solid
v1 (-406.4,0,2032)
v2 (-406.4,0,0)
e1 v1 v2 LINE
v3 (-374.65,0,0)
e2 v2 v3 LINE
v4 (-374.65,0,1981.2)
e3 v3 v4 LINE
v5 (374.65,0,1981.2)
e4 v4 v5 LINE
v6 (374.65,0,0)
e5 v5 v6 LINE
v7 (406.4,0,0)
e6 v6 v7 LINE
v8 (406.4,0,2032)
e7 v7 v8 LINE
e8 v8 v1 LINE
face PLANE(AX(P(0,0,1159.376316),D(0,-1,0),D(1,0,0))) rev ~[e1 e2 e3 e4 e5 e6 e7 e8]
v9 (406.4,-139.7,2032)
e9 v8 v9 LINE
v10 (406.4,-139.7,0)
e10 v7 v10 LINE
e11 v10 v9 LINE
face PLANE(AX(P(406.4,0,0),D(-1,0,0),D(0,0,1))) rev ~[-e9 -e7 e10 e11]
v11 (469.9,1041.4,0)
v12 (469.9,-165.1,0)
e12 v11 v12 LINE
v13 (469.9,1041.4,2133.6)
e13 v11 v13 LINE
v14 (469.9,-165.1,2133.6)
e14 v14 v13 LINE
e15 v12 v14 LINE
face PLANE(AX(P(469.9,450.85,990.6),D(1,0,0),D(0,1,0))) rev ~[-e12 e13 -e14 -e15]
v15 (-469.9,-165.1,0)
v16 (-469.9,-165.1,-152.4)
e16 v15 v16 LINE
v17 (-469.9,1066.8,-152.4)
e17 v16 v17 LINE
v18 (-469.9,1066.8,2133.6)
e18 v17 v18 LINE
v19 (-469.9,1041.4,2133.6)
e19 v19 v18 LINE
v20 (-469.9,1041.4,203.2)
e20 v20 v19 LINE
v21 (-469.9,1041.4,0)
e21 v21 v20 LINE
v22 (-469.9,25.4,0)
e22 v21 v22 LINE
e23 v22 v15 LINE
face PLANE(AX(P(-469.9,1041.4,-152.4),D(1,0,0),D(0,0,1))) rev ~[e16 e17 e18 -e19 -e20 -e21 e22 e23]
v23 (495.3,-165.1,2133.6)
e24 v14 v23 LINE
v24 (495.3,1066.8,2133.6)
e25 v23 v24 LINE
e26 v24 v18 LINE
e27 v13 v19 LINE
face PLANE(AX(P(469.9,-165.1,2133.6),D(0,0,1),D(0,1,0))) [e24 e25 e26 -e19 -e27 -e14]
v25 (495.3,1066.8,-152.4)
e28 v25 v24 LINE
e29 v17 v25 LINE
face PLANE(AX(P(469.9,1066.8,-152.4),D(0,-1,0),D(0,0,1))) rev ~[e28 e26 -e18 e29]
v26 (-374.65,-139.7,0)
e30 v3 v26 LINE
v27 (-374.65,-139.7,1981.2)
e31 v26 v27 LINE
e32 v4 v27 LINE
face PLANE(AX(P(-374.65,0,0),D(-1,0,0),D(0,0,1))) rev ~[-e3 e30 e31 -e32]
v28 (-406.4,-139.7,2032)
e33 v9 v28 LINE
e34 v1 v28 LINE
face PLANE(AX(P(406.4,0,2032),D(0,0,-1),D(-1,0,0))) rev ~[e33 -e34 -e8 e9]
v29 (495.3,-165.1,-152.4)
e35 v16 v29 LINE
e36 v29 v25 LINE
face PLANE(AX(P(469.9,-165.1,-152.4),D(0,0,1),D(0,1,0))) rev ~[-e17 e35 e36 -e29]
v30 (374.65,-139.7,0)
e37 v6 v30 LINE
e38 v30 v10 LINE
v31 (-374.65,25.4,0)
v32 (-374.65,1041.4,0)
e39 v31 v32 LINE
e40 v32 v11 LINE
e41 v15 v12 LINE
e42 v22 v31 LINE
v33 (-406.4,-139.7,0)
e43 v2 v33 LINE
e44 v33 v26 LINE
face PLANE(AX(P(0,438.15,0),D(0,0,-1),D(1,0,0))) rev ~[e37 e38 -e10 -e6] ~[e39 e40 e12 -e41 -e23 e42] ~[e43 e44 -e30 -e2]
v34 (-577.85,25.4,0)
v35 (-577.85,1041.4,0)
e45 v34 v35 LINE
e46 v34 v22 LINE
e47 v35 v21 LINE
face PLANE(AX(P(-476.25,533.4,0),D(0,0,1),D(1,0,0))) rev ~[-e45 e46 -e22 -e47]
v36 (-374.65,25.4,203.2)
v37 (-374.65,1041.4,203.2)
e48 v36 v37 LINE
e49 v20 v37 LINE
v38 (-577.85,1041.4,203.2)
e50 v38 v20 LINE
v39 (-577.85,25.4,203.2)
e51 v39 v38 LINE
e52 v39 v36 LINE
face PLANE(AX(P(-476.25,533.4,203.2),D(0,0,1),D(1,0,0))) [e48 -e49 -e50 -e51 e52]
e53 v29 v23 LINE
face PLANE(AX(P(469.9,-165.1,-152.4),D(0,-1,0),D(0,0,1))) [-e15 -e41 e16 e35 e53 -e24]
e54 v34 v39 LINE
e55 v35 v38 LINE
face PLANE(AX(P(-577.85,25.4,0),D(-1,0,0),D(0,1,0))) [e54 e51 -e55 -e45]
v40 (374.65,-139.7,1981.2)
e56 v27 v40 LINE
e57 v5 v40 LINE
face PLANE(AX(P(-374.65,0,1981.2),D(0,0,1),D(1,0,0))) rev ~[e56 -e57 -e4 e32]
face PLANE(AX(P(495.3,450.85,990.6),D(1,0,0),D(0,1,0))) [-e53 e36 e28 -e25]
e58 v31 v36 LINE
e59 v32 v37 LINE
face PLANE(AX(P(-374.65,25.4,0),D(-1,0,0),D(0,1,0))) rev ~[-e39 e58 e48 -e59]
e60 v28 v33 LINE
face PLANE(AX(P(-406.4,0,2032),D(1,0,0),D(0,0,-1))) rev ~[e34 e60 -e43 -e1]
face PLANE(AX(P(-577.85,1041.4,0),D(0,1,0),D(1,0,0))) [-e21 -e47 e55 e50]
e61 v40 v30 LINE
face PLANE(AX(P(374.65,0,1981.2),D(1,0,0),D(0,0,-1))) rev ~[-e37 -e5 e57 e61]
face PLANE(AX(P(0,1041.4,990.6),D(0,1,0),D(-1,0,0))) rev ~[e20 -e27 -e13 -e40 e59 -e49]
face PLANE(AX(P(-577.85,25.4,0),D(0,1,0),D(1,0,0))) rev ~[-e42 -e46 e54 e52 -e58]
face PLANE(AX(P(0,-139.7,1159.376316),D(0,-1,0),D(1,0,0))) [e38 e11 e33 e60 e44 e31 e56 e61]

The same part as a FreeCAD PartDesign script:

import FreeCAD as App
import Part
import Sketcher
from FreeCAD import Vector
Q = App.Units.Quantity

doc = App.newDocument("Part")
params = doc.addObject("Spreadsheet::Sheet", "Params")
for row, (alias, value) in enumerate([
    ("sketch1_width", "32 in"),
    ("sketch1_height", "78 in"),
    ("sketch1_height2", "80 in"),
    ("sketch1_width2", "29.5 in"),
    ("pad1_length", "5.5 in"),
    ("sketch2_width", "37 in"),
    ("sketch2_height", "47.5 in"),
    ("pad2_length", "6 in"),
    ("sketch3_width", "37 in"),
    ("sketch3_height", "90 in"),
    ("pad3_length", "1 in"),
    ("sketch4_height", "90 in"),
    ("sketch4_width", "48.5 in"),
    ("pad4_length", "1 in"),
    ("sketch5_width", "8 in"),
    ("sketch5_height", "40 in"),
    ("pad5_length", "8 in"),
], start=1):
    params.set(f"A{row}", alias)
    params.set(f"B{row}", "=" + value)
    params.setAlias(f"B{row}", alias)

body = doc.addObject("PartDesign::Body", "Body")

sketch1 = body.newObject("Sketcher::SketchObject", "Sketch")
sketch1.AttachmentSupport = (doc.getObject("XZ_Plane"), [""])
sketch1.MapMode = "FlatFace"
sketch1.addGeometry([
    Part.LineSegment(Vector(-375, 0, 0), Vector(-375, 1981, 0)),
    Part.LineSegment(Vector(-375, 1981, 0), Vector(375, 1981, 0)),
    Part.LineSegment(Vector(375, 1981, 0), Vector(375, 0, 0)),
    Part.LineSegment(Vector(375, 0, 0), Vector(406, 0, 0)),
    Part.LineSegment(Vector(406, 0, 0), Vector(406, 2032, 0)),
    Part.LineSegment(Vector(406, 2032, 0), Vector(-406, 2032, 0)),
    Part.LineSegment(Vector(-406, 2032, 0), Vector(-406, 0, 0)),
    Part.LineSegment(Vector(-406, 0, 0), Vector(-375, 0, 0)),
], False)
sketch1.addConstraint([
    Sketcher.Constraint("Coincident", 0, 2, 1, 1),
    Sketcher.Constraint("Coincident", 1, 2, 2, 1),
    Sketcher.Constraint("Coincident", 2, 2, 3, 1),
    Sketcher.Constraint("Coincident", 3, 2, 4, 1),
    Sketcher.Constraint("Coincident", 4, 2, 5, 1),
    Sketcher.Constraint("Coincident", 5, 2, 6, 1),
    Sketcher.Constraint("Coincident", 6, 2, 7, 1),
    Sketcher.Constraint("Coincident", 7, 2, 0, 1),
    Sketcher.Constraint("Vertical", 0),
    Sketcher.Constraint("Horizontal", 1),
    Sketcher.Constraint("Vertical", 2),
    Sketcher.Constraint("Horizontal", 3),
    Sketcher.Constraint("Vertical", 4),
    Sketcher.Constraint("Horizontal", 5),
    Sketcher.Constraint("Vertical", 6),
    Sketcher.Constraint("Horizontal", 7),
    Sketcher.Constraint("Symmetric", 3, 2, 6, 2, -1, 1),
    Sketcher.Constraint("Symmetric", 2, 2, 7, 2, -2),
    Sketcher.Constraint("DistanceX", 5, 2, 5, 1, Q("32 in")),
    Sketcher.Constraint("DistanceY", 0, 1, 0, 2, Q("78 in")),
    Sketcher.Constraint("DistanceY", 4, 1, 4, 2, Q("80 in")),
    Sketcher.Constraint("DistanceX", 1, 1, 1, 2, Q("29.5 in")),
])
sketch1.setExpression("Constraints[18]", "Params.sketch1_width")
sketch1.setExpression("Constraints[19]", "Params.sketch1_height")
sketch1.setExpression("Constraints[20]", "Params.sketch1_height2")
sketch1.setExpression("Constraints[21]", "Params.sketch1_width2")
pad1 = body.newObject("PartDesign::Pad", "Pad")
pad1.Profile = sketch1
pad1.setExpression("Length", "Params.pad1_length")

sketch2 = body.newObject("Sketcher::SketchObject", "Sketch001")
sketch2.AttachmentSupport = (doc.getObject("XY_Plane"), [""])
sketch2.MapMode = "FlatFace"
sketch2.addGeometry([
    Part.LineSegment(Vector(-470, -165, 0), Vector(-470, 1041, 0)),
    Part.LineSegment(Vector(-470, 1041, 0), Vector(470, 1041, 0)),
    Part.LineSegment(Vector(470, 1041, 0), Vector(470, -165, 0)),
    Part.LineSegment(Vector(470, -165, 0), Vector(-470, -165, 0)),
], False)
sketch2.addConstraint([
    Sketcher.Constraint("Coincident", 0, 2, 1, 1),
    Sketcher.Constraint("Coincident", 1, 2, 2, 1),
    Sketcher.Constraint("Coincident", 2, 2, 3, 1),
    Sketcher.Constraint("Coincident", 3, 2, 0, 1),
    Sketcher.Constraint("Vertical", 0),
    Sketcher.Constraint("Horizontal", 1),
    Sketcher.Constraint("Vertical", 2),
    Sketcher.Constraint("Horizontal", 3),
    Sketcher.Constraint("DistanceX", 1, 1, 1, 2, Q("37 in")),
    Sketcher.Constraint("DistanceY", 0, 1, 0, 2, Q("47.5 in")),
    Sketcher.Constraint("DistanceY", -1, 1, 0, 2, Q("41 in")),
    Sketcher.Constraint("DistanceX", 0, 2, -1, 1, Q("18.5 in")),
])
sketch2.setExpression("Constraints[8]", "Params.sketch2_width")
sketch2.setExpression("Constraints[9]", "Params.sketch2_height")
pad2 = body.newObject("PartDesign::Pad", "Pad001")
pad2.Profile = sketch2
pad2.setExpression("Length", "Params.pad2_length")
pad2.Reversed = True

sketch3 = body.newObject("Sketcher::SketchObject", "Sketch002")
sketch3.AttachmentSupport = (doc.getObject("XZ_Plane"), [""])
sketch3.MapMode = "FlatFace"
sketch3.AttachmentOffset = App.Placement(Vector(0, 0, -41 * 25.4), App.Rotation())
sketch3.addGeometry([
    Part.LineSegment(Vector(470, 2134, 0), Vector(470, -152, 0)),
    Part.LineSegment(Vector(470, -152, 0), Vector(-470, -152, 0)),
    Part.LineSegment(Vector(-470, -152, 0), Vector(-470, 2134, 0)),
    Part.LineSegment(Vector(-470, 2134, 0), Vector(470, 2134, 0)),
], False)
sketch3.addConstraint([
    Sketcher.Constraint("Coincident", 0, 2, 1, 1),
    Sketcher.Constraint("Coincident", 1, 2, 2, 1),
    Sketcher.Constraint("Coincident", 2, 2, 3, 1),
    Sketcher.Constraint("Coincident", 3, 2, 0, 1),
    Sketcher.Constraint("Vertical", 0),
    Sketcher.Constraint("Horizontal", 1),
    Sketcher.Constraint("Vertical", 2),
    Sketcher.Constraint("Horizontal", 3),
    Sketcher.Constraint("DistanceX", 1, 2, 1, 1, Q("37 in")),
    Sketcher.Constraint("DistanceY", 0, 2, 0, 1, Q("90 in")),
    Sketcher.Constraint("DistanceY", 0, 2, -1, 1, Q("6 in")),
    Sketcher.Constraint("DistanceX", -1, 1, 0, 2, Q("18.5 in")),
])
sketch3.setExpression("Constraints[8]", "Params.sketch3_width")
sketch3.setExpression("Constraints[9]", "Params.sketch3_height")
pad3 = body.newObject("PartDesign::Pad", "Pad002")
pad3.Profile = sketch3
pad3.setExpression("Length", "Params.pad3_length")
pad3.Reversed = True

sketch4 = body.newObject("Sketcher::SketchObject", "Sketch003")
sketch4.AttachmentSupport = (doc.getObject("YZ_Plane"), [""])
sketch4.MapMode = "FlatFace"
sketch4.AttachmentOffset = App.Placement(Vector(0, 0, 18.5 * 25.4), App.Rotation())
sketch4.addGeometry([
    Part.LineSegment(Vector(-165, 2134, 0), Vector(-165, -152, 0)),
    Part.LineSegment(Vector(-165, -152, 0), Vector(1067, -152, 0)),
    Part.LineSegment(Vector(1067, -152, 0), Vector(1067, 2134, 0)),
    Part.LineSegment(Vector(1067, 2134, 0), Vector(-165, 2134, 0)),
], False)
sketch4.addConstraint([
    Sketcher.Constraint("Coincident", 0, 2, 1, 1),
    Sketcher.Constraint("Coincident", 1, 2, 2, 1),
    Sketcher.Constraint("Coincident", 2, 2, 3, 1),
    Sketcher.Constraint("Coincident", 3, 2, 0, 1),
    Sketcher.Constraint("Vertical", 0),
    Sketcher.Constraint("Horizontal", 1),
    Sketcher.Constraint("Vertical", 2),
    Sketcher.Constraint("Horizontal", 3),
    Sketcher.Constraint("DistanceY", 0, 2, 0, 1, Q("90 in")),
    Sketcher.Constraint("DistanceX", 1, 1, 1, 2, Q("48.5 in")),
    Sketcher.Constraint("DistanceY", 0, 2, -1, 1, Q("6 in")),
    Sketcher.Constraint("DistanceX", -1, 1, 1, 2, Q("42 in")),
])
sketch4.setExpression("Constraints[8]", "Params.sketch4_height")
sketch4.setExpression("Constraints[9]", "Params.sketch4_width")
pad4 = body.newObject("PartDesign::Pad", "Pad003")
pad4.Profile = sketch4
pad4.setExpression("Length", "Params.pad4_length")

sketch5 = body.newObject("Sketcher::SketchObject", "Sketch004")
sketch5.AttachmentSupport = (doc.getObject("XY_Plane"), [""])
sketch5.MapMode = "FlatFace"
sketch5.addGeometry([
    Part.LineSegment(Vector(-578, 1041, 0), Vector(-578, 25, 0)),
    Part.LineSegment(Vector(-578, 25, 0), Vector(-375, 25, 0)),
    Part.LineSegment(Vector(-375, 25, 0), Vector(-375, 1041, 0)),
    Part.LineSegment(Vector(-375, 1041, 0), Vector(-578, 1041, 0)),
], False)
sketch5.addConstraint([
    Sketcher.Constraint("Coincident", 0, 2, 1, 1),
    Sketcher.Constraint("Coincident", 1, 2, 2, 1),
    Sketcher.Constraint("Coincident", 2, 2, 3, 1),
    Sketcher.Constraint("Coincident", 3, 2, 0, 1),
    Sketcher.Constraint("Vertical", 0),
    Sketcher.Constraint("Horizontal", 1),
    Sketcher.Constraint("Vertical", 2),
    Sketcher.Constraint("Horizontal", 3),
    Sketcher.Constraint("DistanceX", 1, 1, 1, 2, Q("8 in")),
    Sketcher.Constraint("DistanceY", 0, 2, 0, 1, Q("40 in")),
    Sketcher.Constraint("DistanceY", -1, 1, 0, 2, Q("1 in")),
    Sketcher.Constraint("DistanceX", 0, 2, -1, 1, Q("22.75 in")),
])
sketch5.setExpression("Constraints[8]", "Params.sketch5_width")
sketch5.setExpression("Constraints[9]", "Params.sketch5_height")
pad5 = body.newObject("PartDesign::Pad", "Pad004")
pad5.Profile = sketch5
pad5.setExpression("Length", "Params.pad5_length")

doc.recompute()
